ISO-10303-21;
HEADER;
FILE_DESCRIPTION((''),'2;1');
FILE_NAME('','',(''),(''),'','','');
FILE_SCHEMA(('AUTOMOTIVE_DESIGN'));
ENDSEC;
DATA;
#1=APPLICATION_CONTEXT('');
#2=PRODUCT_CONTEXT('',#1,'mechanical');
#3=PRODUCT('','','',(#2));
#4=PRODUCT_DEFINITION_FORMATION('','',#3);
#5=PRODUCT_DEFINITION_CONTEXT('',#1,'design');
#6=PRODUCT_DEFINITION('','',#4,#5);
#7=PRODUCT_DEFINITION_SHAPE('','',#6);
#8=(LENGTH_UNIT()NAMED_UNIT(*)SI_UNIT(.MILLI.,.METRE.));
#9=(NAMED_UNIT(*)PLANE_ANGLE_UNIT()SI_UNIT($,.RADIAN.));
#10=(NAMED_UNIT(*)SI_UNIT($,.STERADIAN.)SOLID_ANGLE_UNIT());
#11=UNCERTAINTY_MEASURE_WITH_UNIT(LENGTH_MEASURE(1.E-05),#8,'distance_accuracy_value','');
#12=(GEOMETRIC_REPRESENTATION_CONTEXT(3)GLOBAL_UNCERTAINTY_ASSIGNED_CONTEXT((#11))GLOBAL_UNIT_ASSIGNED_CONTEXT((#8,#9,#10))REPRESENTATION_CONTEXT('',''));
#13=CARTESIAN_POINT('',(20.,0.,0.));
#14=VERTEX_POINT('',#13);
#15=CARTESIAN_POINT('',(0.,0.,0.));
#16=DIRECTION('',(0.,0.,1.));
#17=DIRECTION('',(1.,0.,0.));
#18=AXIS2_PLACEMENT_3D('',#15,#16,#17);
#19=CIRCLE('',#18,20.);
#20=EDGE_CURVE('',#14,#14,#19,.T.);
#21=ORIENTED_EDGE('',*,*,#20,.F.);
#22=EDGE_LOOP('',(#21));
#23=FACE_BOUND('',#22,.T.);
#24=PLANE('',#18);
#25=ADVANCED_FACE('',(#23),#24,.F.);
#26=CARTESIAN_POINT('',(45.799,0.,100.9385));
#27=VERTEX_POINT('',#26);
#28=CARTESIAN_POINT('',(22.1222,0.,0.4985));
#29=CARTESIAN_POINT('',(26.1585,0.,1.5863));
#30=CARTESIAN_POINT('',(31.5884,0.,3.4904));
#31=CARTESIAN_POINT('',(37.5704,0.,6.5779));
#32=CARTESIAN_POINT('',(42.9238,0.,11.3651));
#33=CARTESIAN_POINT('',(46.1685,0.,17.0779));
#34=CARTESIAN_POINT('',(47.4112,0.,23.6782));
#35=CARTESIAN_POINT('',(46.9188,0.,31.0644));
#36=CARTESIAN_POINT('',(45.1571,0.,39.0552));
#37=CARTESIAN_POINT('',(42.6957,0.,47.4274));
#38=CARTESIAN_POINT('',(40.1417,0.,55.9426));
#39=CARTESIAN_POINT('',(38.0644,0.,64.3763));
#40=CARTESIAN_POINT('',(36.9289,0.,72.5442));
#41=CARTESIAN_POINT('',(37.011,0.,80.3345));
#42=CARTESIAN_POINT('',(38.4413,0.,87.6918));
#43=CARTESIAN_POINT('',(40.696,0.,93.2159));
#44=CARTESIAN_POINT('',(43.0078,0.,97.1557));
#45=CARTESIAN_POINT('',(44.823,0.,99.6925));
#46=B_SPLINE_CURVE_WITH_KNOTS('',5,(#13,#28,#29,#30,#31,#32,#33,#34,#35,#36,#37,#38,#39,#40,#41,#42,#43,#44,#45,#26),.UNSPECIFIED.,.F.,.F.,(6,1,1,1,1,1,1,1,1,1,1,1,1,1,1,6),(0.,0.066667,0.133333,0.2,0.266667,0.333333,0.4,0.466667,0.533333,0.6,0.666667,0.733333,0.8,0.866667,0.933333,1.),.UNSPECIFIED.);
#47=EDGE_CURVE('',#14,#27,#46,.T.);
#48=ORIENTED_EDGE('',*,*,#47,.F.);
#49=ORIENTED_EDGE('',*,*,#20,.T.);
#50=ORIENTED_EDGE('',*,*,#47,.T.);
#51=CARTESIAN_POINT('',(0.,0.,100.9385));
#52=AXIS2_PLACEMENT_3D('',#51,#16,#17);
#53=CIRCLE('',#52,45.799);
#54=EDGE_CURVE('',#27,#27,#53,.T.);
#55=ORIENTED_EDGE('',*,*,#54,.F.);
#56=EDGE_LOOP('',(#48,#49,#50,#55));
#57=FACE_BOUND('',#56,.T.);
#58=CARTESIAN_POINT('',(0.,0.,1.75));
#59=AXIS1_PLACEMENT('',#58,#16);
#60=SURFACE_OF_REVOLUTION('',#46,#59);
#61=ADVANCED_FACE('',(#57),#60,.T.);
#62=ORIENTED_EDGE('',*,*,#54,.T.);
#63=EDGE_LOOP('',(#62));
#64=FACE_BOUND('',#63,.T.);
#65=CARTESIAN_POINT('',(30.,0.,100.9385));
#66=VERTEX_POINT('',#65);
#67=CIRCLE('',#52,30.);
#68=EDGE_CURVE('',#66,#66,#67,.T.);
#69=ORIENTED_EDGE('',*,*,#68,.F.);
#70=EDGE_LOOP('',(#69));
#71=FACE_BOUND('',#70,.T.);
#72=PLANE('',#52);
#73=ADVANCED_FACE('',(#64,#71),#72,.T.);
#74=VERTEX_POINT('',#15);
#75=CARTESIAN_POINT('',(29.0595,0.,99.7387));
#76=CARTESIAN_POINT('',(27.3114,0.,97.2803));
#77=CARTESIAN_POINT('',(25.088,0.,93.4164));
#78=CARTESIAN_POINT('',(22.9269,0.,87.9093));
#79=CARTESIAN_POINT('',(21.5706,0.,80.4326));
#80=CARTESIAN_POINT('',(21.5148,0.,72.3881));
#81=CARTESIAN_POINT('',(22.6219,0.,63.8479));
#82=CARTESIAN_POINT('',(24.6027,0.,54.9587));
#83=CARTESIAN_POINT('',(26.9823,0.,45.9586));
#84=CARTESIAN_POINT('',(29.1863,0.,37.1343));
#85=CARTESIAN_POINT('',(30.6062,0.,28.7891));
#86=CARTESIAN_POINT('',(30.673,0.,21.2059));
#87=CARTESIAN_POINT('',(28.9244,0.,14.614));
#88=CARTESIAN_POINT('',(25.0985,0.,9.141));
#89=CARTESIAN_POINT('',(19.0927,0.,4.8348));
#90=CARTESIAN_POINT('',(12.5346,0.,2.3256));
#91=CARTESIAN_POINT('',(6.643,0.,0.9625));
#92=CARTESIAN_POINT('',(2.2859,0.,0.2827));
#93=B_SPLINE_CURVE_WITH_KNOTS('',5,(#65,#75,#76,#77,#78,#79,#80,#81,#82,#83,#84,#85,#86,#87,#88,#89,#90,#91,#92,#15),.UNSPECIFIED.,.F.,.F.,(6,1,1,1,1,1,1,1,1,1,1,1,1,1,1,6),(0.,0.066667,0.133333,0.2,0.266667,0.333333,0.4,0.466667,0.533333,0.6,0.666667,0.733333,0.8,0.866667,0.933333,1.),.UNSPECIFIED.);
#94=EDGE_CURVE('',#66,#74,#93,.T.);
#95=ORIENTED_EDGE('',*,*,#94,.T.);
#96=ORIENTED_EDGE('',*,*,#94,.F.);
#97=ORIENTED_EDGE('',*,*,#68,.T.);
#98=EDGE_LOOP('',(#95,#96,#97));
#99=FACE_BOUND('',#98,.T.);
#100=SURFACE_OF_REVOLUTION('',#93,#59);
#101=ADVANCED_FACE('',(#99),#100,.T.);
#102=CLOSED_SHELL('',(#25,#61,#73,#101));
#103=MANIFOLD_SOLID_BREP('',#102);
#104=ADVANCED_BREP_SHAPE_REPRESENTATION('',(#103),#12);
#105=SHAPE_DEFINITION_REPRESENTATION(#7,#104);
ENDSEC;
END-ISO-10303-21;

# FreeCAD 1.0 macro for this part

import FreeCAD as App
import Part
import Sketcher

V = App.Vector

doc = App.newDocument("Part")
body = doc.addObject("PartDesign::Body", "Body")

# Sketch on XZ plane
sketch1 = body.newObject("Sketcher::SketchObject", "Sketch")
sketch1.AttachmentSupport = (doc.getObject("XZ_Plane"), [""])
sketch1.MapMode = "FlatFace"
sketch1.addGeometry([
    Part.LineSegment(V(20, 0, 0), V(0, 0, 0)),
    Part.BSplineCurve([V(30, 100.9385, 0), V(29.0595, 99.7387, 0), V(27.3114, 97.2803, 0), V(25.088, 93.4164, 0), V(22.9269, 87.9093, 0), V(21.5706, 80.4326, 0), V(21.5148, 72.3881, 0), V(22.6219, 63.8479, 0), V(24.6027, 54.9587, 0), V(26.9823, 45.9586, 0), V(29.1863, 37.1343, 0), V(30.6062, 28.7891, 0), V(30.673, 21.2059, 0), V(28.9244, 14.614, 0), V(25.0985, 9.141, 0), V(19.0927, 4.8348, 0), V(12.5346, 2.3256, 0), V(6.643, 0.9625, 0), V(2.2859, 0.2827, 0), V(0, 0, 0)], [6, 1, 1, 1, 1, 1, 1, 1, 1, 1, 1, 1, 1, 1, 1, 6], [0, 0.066667, 0.133333, 0.2, 0.266667, 0.333333, 0.4, 0.466667, 0.533333, 0.6, 0.666667, 0.733333, 0.8, 0.866667, 0.933333, 1], False, 5, [1, 1, 1, 1, 1, 1, 1, 1, 1, 1, 1, 1, 1, 1, 1, 1, 1, 1, 1, 1], False),
    Part.LineSegment(V(30, 100.9385, 0), V(45.799, 100.9385, 0)),
    Part.BSplineCurve([V(20, 0, 0), V(22.1222, 0.4985, 0), V(26.1585, 1.5863, 0), V(31.5884, 3.4904, 0), V(37.5704, 6.5779, 0), V(42.9238, 11.3651, 0), V(46.1685, 17.0779, 0), V(47.4112, 23.6782, 0), V(46.9188, 31.0644, 0), V(45.1571, 39.0552, 0), V(42.6957, 47.4274, 0), V(40.1417, 55.9426, 0), V(38.0644, 64.3763, 0), V(36.9289, 72.5442, 0), V(37.011, 80.3345, 0), V(38.4413, 87.6918, 0), V(40.696, 93.2159, 0), V(43.0078, 97.1557, 0), V(44.823, 99.6925, 0), V(45.799, 100.9385, 0)], [6, 1, 1, 1, 1, 1, 1, 1, 1, 1, 1, 1, 1, 1, 1, 6], [0, 0.066667, 0.133333, 0.2, 0.266667, 0.333333, 0.4, 0.466667, 0.533333, 0.6, 0.666667, 0.733333, 0.8, 0.866667, 0.933333, 1], False, 5, [1, 1, 1, 1, 1, 1, 1, 1, 1, 1, 1, 1, 1, 1, 1, 1, 1, 1, 1, 1], False),
], False)
sketch1.addConstraint([
    Sketcher.Constraint("Block", 1),
    Sketcher.Constraint("Block", 3),
    Sketcher.Constraint("Coincident", 0, 2, 1, 2),
    Sketcher.Constraint("Coincident", 1, 1, 2, 1),
    Sketcher.Constraint("Coincident", 2, 2, 3, 2),
    Sketcher.Constraint("Coincident", 3, 1, 0, 1),
])
revolution = body.newObject("PartDesign::Revolution", "Revolution")
revolution.Profile = sketch1
revolution.ReferenceAxis = (sketch1, ["V_Axis"])
revolution.Angle = 360

doc.recompute()
